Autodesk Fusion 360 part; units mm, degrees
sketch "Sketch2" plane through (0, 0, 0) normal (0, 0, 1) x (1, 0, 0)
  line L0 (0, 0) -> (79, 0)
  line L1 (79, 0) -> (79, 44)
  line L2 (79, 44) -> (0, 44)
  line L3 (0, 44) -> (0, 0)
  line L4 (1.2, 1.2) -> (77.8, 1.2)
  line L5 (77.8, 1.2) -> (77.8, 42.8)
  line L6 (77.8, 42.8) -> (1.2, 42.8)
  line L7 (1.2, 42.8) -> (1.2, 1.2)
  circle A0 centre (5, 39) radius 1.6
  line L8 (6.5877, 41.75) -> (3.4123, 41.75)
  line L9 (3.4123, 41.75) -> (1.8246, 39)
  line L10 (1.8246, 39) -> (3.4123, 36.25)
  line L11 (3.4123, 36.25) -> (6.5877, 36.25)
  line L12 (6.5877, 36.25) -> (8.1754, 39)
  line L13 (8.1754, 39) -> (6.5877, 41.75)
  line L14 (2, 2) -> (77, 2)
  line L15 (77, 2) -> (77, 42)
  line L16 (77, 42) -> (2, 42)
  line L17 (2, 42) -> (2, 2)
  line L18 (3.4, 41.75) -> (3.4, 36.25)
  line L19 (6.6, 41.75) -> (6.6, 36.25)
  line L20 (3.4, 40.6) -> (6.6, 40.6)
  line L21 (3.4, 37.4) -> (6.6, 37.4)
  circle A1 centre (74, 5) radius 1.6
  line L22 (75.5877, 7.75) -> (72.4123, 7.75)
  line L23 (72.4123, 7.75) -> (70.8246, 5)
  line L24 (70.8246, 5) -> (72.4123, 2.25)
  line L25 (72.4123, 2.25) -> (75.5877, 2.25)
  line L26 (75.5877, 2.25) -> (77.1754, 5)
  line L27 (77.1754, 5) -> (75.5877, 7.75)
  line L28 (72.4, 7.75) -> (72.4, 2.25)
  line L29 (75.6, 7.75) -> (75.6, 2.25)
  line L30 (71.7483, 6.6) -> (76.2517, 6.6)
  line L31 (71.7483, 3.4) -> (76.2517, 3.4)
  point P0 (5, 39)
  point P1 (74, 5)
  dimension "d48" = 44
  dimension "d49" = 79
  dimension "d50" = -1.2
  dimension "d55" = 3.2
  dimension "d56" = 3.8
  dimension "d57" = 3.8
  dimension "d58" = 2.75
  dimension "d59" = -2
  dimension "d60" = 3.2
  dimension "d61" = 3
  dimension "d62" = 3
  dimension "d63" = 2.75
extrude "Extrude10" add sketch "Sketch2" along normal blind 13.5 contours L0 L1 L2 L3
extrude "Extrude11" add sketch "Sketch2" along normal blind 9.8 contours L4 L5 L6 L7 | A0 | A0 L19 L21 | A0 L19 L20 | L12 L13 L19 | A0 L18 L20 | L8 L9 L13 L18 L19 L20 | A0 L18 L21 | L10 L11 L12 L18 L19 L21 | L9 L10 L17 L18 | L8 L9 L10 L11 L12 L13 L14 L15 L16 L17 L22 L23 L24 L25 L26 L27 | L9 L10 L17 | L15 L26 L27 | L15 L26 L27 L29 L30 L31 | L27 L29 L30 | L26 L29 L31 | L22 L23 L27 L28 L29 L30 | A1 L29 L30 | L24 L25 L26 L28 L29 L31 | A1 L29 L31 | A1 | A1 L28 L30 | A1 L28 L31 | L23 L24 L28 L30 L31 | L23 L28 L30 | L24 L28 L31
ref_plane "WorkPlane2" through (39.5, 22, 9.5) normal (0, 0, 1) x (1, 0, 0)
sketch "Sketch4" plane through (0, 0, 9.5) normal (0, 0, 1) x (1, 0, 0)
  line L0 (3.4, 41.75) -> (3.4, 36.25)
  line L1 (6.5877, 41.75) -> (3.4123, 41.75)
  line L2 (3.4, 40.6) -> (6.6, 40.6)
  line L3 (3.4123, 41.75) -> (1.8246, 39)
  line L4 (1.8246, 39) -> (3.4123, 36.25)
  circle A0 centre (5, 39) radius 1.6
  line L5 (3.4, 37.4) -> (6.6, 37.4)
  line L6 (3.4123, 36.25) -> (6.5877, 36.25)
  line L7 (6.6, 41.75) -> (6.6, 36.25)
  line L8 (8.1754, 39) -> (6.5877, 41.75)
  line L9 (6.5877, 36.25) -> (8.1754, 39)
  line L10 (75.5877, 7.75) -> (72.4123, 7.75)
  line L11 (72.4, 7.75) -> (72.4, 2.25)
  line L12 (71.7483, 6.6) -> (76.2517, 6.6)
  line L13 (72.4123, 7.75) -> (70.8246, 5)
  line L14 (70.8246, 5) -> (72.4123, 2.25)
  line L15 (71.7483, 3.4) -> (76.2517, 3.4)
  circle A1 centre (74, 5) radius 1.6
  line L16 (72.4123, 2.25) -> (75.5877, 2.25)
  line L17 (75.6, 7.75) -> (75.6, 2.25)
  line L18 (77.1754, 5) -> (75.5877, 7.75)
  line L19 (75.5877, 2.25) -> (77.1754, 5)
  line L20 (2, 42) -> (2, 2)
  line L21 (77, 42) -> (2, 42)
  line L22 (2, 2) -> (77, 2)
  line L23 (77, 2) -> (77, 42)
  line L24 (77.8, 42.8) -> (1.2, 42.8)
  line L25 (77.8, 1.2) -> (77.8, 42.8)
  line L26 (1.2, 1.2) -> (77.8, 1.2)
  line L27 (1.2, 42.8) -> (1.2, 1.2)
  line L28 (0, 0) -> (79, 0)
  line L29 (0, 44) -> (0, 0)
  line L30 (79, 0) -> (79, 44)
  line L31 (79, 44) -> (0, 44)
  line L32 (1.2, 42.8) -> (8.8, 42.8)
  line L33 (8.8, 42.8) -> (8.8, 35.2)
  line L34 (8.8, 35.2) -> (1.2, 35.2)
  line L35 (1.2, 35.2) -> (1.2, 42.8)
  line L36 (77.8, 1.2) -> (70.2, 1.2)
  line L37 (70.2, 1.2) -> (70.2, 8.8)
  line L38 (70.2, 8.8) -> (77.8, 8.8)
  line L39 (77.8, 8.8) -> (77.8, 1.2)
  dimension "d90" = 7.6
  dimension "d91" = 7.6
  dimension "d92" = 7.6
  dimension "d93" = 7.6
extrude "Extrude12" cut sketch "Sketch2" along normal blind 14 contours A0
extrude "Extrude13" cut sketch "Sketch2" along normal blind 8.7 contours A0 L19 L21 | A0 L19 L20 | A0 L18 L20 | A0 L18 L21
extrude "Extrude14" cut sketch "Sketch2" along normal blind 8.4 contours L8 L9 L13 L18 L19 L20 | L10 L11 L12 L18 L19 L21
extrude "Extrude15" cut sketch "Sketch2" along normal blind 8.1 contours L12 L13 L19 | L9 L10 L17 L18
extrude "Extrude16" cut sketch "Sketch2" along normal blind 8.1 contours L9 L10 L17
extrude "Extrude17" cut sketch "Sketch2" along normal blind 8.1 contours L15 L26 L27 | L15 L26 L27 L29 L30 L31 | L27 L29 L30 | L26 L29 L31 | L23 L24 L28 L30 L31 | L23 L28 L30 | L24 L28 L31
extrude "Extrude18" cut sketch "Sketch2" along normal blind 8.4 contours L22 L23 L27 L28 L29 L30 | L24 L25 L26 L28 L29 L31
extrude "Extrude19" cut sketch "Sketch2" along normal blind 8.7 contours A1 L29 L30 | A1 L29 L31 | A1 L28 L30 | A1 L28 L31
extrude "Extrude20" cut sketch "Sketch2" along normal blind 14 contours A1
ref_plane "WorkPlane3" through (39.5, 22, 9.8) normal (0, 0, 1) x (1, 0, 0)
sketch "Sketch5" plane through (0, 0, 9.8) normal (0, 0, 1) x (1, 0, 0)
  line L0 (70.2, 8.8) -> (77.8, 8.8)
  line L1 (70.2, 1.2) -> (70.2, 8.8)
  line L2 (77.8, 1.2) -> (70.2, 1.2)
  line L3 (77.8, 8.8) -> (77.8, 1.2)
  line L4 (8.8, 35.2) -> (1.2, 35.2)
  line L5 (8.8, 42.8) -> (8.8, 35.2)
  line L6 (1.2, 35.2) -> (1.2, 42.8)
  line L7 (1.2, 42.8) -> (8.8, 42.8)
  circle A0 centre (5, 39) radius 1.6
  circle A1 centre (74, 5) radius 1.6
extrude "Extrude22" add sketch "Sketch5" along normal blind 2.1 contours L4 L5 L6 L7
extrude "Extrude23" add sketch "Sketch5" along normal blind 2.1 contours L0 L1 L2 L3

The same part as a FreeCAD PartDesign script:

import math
import FreeCAD as App
import Part
import Sketcher
from FreeCAD import Vector
Q = App.Units.Quantity


def add_polygon(sketch, points):
    """Adds a closed chain of lines whose ends are joined by coincident constraints."""
    first, n = sketch.GeometryCount, len(points)
    for a, b in zip(points, points[1:] + points[:1]):
        sketch.addGeometry(Part.LineSegment(App.Vector(*a, 0), App.Vector(*b, 0)), False)
    for i in range(n):
        sketch.addConstraint(Sketcher.Constraint("Coincident", first + i, 2, first + (i + 1) % n, 1))

doc = App.newDocument("Part")
body = doc.addObject("PartDesign::Body", "Body")

# Sketch on XY plane
sketch1 = body.newObject("Sketcher::SketchObject", "Sketch")
sketch1.AttachmentSupport = (doc.getObject("XY_Plane"), [""])
sketch1.MapMode = "FlatFace"
add_polygon(sketch1, [(0, 44), (0, 0), (79, 0), (79, 44)])  # lines 0-3
add_polygon(sketch1, [(78, 1), (1, 1), (1, 43), (78, 43)])  # lines 4-7
sketch1.addConstraint([
    Sketcher.Constraint("Vertical", 0),
    Sketcher.Constraint("Horizontal", 1),
    Sketcher.Constraint("Vertical", 2),
    Sketcher.Constraint("Horizontal", 3),
    Sketcher.Constraint("Horizontal", 4),
    Sketcher.Constraint("Vertical", 5),
    Sketcher.Constraint("Horizontal", 6),
    Sketcher.Constraint("Vertical", 7),
    Sketcher.Constraint("Coincident", 0, 2, -1, 1),
    Sketcher.Constraint("DistanceX", 1, 1, 1, 2, 79.0),
    Sketcher.Constraint("DistanceY", 0, 2, 0, 1, 44.0),
    Sketcher.Constraint("DistanceX", -1, 1, 4, 2, 1.2),
    Sketcher.Constraint("DistanceY", -1, 1, 4, 2, 1.2),
    Sketcher.Constraint("DistanceY", 5, 2, 3, 2, 1.2),
    Sketcher.Constraint("DistanceX", 6, 2, 2, 2, 1.2),
])
pad1 = body.newObject("PartDesign::Pad", "Pad")
pad1.Profile = sketch1
pad1.Length = 13.5

# Sketch on XY plane
sketch2 = body.newObject("Sketcher::SketchObject", "Sketch001")
sketch2.AttachmentSupport = (doc.getObject("XY_Plane"), [""])
sketch2.MapMode = "FlatFace"
add_polygon(sketch2, [(1, 43), (1, 1), (78, 1), (78, 43)])  # lines 0-3
sketch2.addConstraint([
    Sketcher.Constraint("Vertical", 0),
    Sketcher.Constraint("Horizontal", 1),
    Sketcher.Constraint("Vertical", 2),
    Sketcher.Constraint("Horizontal", 3),
    Sketcher.Constraint("DistanceX", -1, 1, 0, 2, 1.2),
    Sketcher.Constraint("DistanceY", -1, 1, 0, 2, 1.2),
    Sketcher.Constraint("DistanceX", 1, 1, 1, 2, 76.6),
    Sketcher.Constraint("DistanceY", 0, 2, 0, 1, 41.6),
])
pad2 = body.newObject("PartDesign::Pad", "Pad001")
pad2.Profile = sketch2
pad2.Length = 9.8

# Sketch on XY plane
sketch3 = body.newObject("Sketcher::SketchObject", "Sketch002")
sketch3.AttachmentSupport = (doc.getObject("XY_Plane"), [""])
sketch3.MapMode = "FlatFace"
sketch3.addGeometry(Part.Circle(Vector(5, 39, 0), Vector(0, 0, 1), 1.6), False)
sketch3.addConstraint([
    Sketcher.Constraint("Diameter", 0, 3.2),
    Sketcher.Constraint("DistanceX", -1, 1, 0, 3, 5.0),
    Sketcher.Constraint("DistanceY", -1, 1, 0, 3, 39.0),
])
pocket1 = body.newObject("PartDesign::Pocket", "Pocket")
pocket1.Profile = sketch3
pocket1.Length = 14
pocket1.Reversed = True

# Sketch on XY plane
sketch4 = body.newObject("Sketcher::SketchObject", "Sketch003")
sketch4.AttachmentSupport = (doc.getObject("XY_Plane"), [""])
sketch4.MapMode = "FlatFace"
sketch4.addGeometry([
    Part.LineSegment(Vector(6.6, 37.4, 0), Vector(6.6, 39, 0)),  # 0
    Part.ArcOfCircle(Part.Circle(Vector(5, 39, 0), Vector(0, 0, 1), 1.6), math.radians(-90), math.radians(0)),  # 1
    Part.LineSegment(Vector(5, 37.4, 0), Vector(6.6, 37.4, 0)),  # 2
    Part.ArcOfCircle(Part.Circle(Vector(5, 39, 0), Vector(0, 0, 1), 1.6), math.radians(0), math.radians(90)),  # 3
    Part.LineSegment(Vector(6.6, 39, 0), Vector(6.6, 40.6, 0)),  # 4
    Part.LineSegment(Vector(6.6, 40.6, 0), Vector(5, 40.6, 0)),  # 5
    Part.ArcOfCircle(Part.Circle(Vector(5, 39, 0), Vector(0, 0, 1), 1.6), math.radians(90), math.radians(180)),  # 6
    Part.LineSegment(Vector(5, 40.6, 0), Vector(3.4, 40.6, 0)),  # 7
    Part.LineSegment(Vector(3.4, 40.6, 0), Vector(3.4, 39, 0)),  # 8
    Part.LineSegment(Vector(3.4, 37.4, 0), Vector(5, 37.4, 0)),  # 9
    Part.ArcOfCircle(Part.Circle(Vector(5, 39, 0), Vector(0, 0, 1), 1.6), math.radians(180), math.radians(270)),  # 10
    Part.LineSegment(Vector(3.4, 39, 0), Vector(3.4, 37.4, 0)),  # 11
], False)
sketch4.addConstraint([
    Sketcher.Constraint("Tangent", 0, 2, 1, 2),
    Sketcher.Constraint("Tangent", 1, 1, 2, 1),
    Sketcher.Constraint("Coincident", 2, 2, 0, 1),
    Sketcher.Constraint("Tangent", 3, 1, 4, 1),
    Sketcher.Constraint("Coincident", 4, 2, 5, 1),
    Sketcher.Constraint("Tangent", 5, 2, 3, 2),
    Sketcher.Constraint("Tangent", 6, 1, 7, 1),
    Sketcher.Constraint("Coincident", 7, 2, 8, 1),
    Sketcher.Constraint("Tangent", 8, 2, 6, 2),
    Sketcher.Constraint("Tangent", 9, 2, 10, 2),
    Sketcher.Constraint("Tangent", 10, 1, 11, 1),
    Sketcher.Constraint("Coincident", 11, 2, 9, 1),
    Sketcher.Constraint("Vertical", 0),
    Sketcher.Constraint("Horizontal", 2),
    Sketcher.Constraint("Vertical", 4),
    Sketcher.Constraint("Horizontal", 5),
    Sketcher.Constraint("Horizontal", 7),
    Sketcher.Constraint("Vertical", 8),
    Sketcher.Constraint("Horizontal", 9),
    Sketcher.Constraint("Vertical", 11),
    Sketcher.Constraint("Coincident", 3, 3, 1, 3),
    Sketcher.Constraint("Coincident", 6, 3, 1, 3),
    Sketcher.Constraint("Coincident", 10, 3, 1, 3),
    Sketcher.Constraint("Equal", 1, 3),
    Sketcher.Constraint("Equal", 3, 6),
    Sketcher.Constraint("Equal", 6, 10),
    Sketcher.Constraint("Radius", 1, 1.6),
    Sketcher.Constraint("DistanceX", -1, 1, 1, 3, 5.0),
    Sketcher.Constraint("DistanceY", -1, 1, 1, 3, 39.0),
])
pocket2 = body.newObject("PartDesign::Pocket", "Pocket001")
pocket2.Profile = sketch4
pocket2.Length = 8.7
pocket2.Reversed = True

# Sketch on XY plane
sketch5 = body.newObject("Sketcher::SketchObject", "Sketch004")
sketch5.AttachmentSupport = (doc.getObject("XY_Plane"), [""])
sketch5.MapMode = "FlatFace"
add_polygon(sketch5, [(3.4, 40.6), (6.6, 40.6), (6.6, 41.729), (6.588, 41.75), (3.412, 41.75), (3.4, 41.729)])  # lines 0-5
add_polygon(sketch5, [(6.6, 37.4), (3.4, 37.4), (3.4, 36.271), (3.412, 36.25), (6.588, 36.25), (6.6, 36.271)])  # lines 6-11
sketch5.addConstraint([
    Sketcher.Constraint("Horizontal", 0),
    Sketcher.Constraint("Vertical", 1),
    Sketcher.Constraint("Horizontal", 3),
    Sketcher.Constraint("Vertical", 5),
    Sketcher.Constraint("Horizontal", 6),
    Sketcher.Constraint("Vertical", 7),
    Sketcher.Constraint("Horizontal", 9),
    Sketcher.Constraint("Vertical", 11),
    Sketcher.Constraint("Parallel", 2, 8),
    Sketcher.Constraint("Parallel", 4, 10),
    Sketcher.Constraint("Horizontal", 1, 2, 4, 2),
    Sketcher.Constraint("Horizontal", 7, 2, 10, 2),
    Sketcher.Constraint("Vertical", 5, 2, 6, 2),
    Sketcher.Constraint("Vertical", 3, 2, 8, 2),
    Sketcher.Constraint("Vertical", 2, 2, 9, 2),
    Sketcher.Constraint("Vertical", 1, 2, 10, 2),
    Sketcher.Constraint("Equal", 5, 7),
    Sketcher.Constraint("DistanceX", 0, 1, 0, 2, 3.2),
    Sketcher.Constraint("DistanceY", 6, 2, 5, 2, 3.2),
    Sketcher.Constraint("Angle", 2, Q("119.9998 deg")),
    Sketcher.Constraint("DistanceX", -1, 1, 0, 2, 6.6),
    Sketcher.Constraint("DistanceY", -1, 1, 0, 2, 40.6),
    Sketcher.Constraint("DistanceY", -1, 1, 2, 2, 41.75),
    Sketcher.Constraint("DistanceX", 3, 2, 3, 1, 3.1754),
])
pocket3 = body.newObject("PartDesign::Pocket", "Pocket002")
pocket3.Profile = sketch5
pocket3.Length = 8.4
pocket3.Reversed = True

# Sketch on XY plane
sketch6 = body.newObject("Sketcher::SketchObject", "Sketch005")
sketch6.AttachmentSupport = (doc.getObject("XY_Plane"), [""])
sketch6.MapMode = "FlatFace"
add_polygon(sketch6, [(6.6, 41.7), (6.6, 36.3), (8.2, 39)])  # lines 0-2
add_polygon(sketch6, [(3.4, 36.3), (3.4, 41.7), (2, 39.3), (2, 38.7)])  # lines 3-6
sketch6.addConstraint([
    Sketcher.Constraint("Vertical", 0),
    Sketcher.Constraint("Vertical", 3),
    Sketcher.Constraint("Vertical", 5),
    Sketcher.Constraint("Parallel", 1, 4),
    Sketcher.Constraint("Parallel", 2, 6),
    Sketcher.Constraint("Horizontal", 2, 2, 3, 2),
    Sketcher.Constraint("Horizontal", 0, 2, 6, 2),
    Sketcher.Constraint("Equal", 1, 2),
    Sketcher.Constraint("DistanceX", -1, 1, 4, 2, 2.0),
    Sketcher.Constraint("DistanceX", 3, 2, 2, 2, 3.2),
    Sketcher.Constraint("Angle", 1, Q("60.0002 deg")),
    Sketcher.Constraint("DistanceY", -1, 1, 1, 2, 39.0),
    Sketcher.Constraint("Distance", 4, 2.8),
    Sketcher.Constraint("DistanceY", 0, 2, 0, 1, 5.4574),
])
pocket4 = body.newObject("PartDesign::Pocket", "Pocket003")
pocket4.Profile = sketch6
pocket4.Length = 8.1
pocket4.Reversed = True

# Sketch on XY plane
sketch7 = body.newObject("Sketcher::SketchObject", "Sketch006")
sketch7.AttachmentSupport = (doc.getObject("XY_Plane"), [""])
sketch7.MapMode = "FlatFace"
add_polygon(sketch7, [(2, 38.7), (2, 39.3), (1.82, 39)])  # lines 0-2
sketch7.addConstraint([
    Sketcher.Constraint("Vertical", 0),
    Sketcher.Constraint("Equal", 1, 2),
    Sketcher.Constraint("DistanceX", -1, 1, 0, 2, 2.0),
    Sketcher.Constraint("Angle", 1, Q("-119.9998 deg")),
    Sketcher.Constraint("DistanceY", -1, 1, 1, 2, 39.0),
    Sketcher.Constraint("DistanceY", 0, 1, 0, 2, 0.6076),
])
pocket5 = body.newObject("PartDesign::Pocket", "Pocket004")
pocket5.Profile = sketch7
pocket5.Length = 8.1
pocket5.Reversed = True

# Sketch on XY plane
sketch8 = body.newObject("Sketcher::SketchObject", "Sketch007")
sketch8.AttachmentSupport = (doc.getObject("XY_Plane"), [""])
sketch8.MapMode = "FlatFace"
add_polygon(sketch8, [(77.2, 5), (75.6, 7.7), (75.6, 2.3)])  # lines 0-2
add_polygon(sketch8, [(72.4, 7.7), (70.8, 5), (72.4, 2.3)])  # lines 3-5
sketch8.addConstraint([
    Sketcher.Constraint("Vertical", 1),
    Sketcher.Constraint("Vertical", 5),
    Sketcher.Constraint("Parallel", 2, 3),
    Sketcher.Constraint("Parallel", 0, 4),
    Sketcher.Constraint("Horizontal", 2, 2, 3, 2),
    Sketcher.Constraint("Horizontal", 1, 2, 4, 2),
    Sketcher.Constraint("Horizontal", 0, 2, 5, 2),
    Sketcher.Constraint("DistanceX", 4, 2, 1, 2, 3.2),
    Sketcher.Constraint("Angle", 0, Q("119.9998 deg")),
    Sketcher.Constraint("DistanceY", -1, 1, 2, 2, 5.0),
    Sketcher.Constraint("DistanceX", -1, 1, 0, 2, 75.6),
    Sketcher.Constraint("DistanceY", 1, 2, 1, 1, 5.4574),
])
pocket6 = body.newObject("PartDesign::Pocket", "Pocket005")
pocket6.Profile = sketch8
pocket6.Length = 8.1
pocket6.Reversed = True

# Sketch on XY plane
sketch9 = body.newObject("Sketcher::SketchObject", "Sketch008")
sketch9.AttachmentSupport = (doc.getObject("XY_Plane"), [""])
sketch9.MapMode = "FlatFace"
add_polygon(sketch9, [(75.6, 6.6), (75.6, 7.729), (75.588, 7.75), (72.412, 7.75), (72.4, 7.729), (72.4, 6.6)])  # lines 0-5
add_polygon(sketch9, [(75.588, 2.25), (75.6, 2.271), (75.6, 3.4), (72.4, 3.4), (72.4, 2.271), (72.412, 2.25)])  # lines 6-11
sketch9.addConstraint([
    Sketcher.Constraint("Vertical", 0),
    Sketcher.Constraint("Horizontal", 2),
    Sketcher.Constraint("Vertical", 4),
    Sketcher.Constraint("Horizontal", 5),
    Sketcher.Constraint("Vertical", 7),
    Sketcher.Constraint("Horizontal", 8),
    Sketcher.Constraint("Vertical", 9),
    Sketcher.Constraint("Horizontal", 11),
    Sketcher.Constraint("Parallel", 3, 6),
    Sketcher.Constraint("Parallel", 1, 10),
    Sketcher.Constraint("Horizontal", 0, 2, 3, 2),
    Sketcher.Constraint("Horizontal", 6, 2, 9, 2),
    Sketcher.Constraint("Vertical", 5, 2, 6, 2),
    Sketcher.Constraint("Vertical", 4, 2, 8, 2),
    Sketcher.Constraint("Vertical", 2, 2, 10, 2),
    Sketcher.Constraint("Vertical", 1, 2, 11, 2),
    Sketcher.Constraint("Equal", 4, 7),
    Sketcher.Constraint("DistanceX", 5, 1, 5, 2, 3.2),
    Sketcher.Constraint("DistanceY", 7, 2, 5, 2, 3.2),
    Sketcher.Constraint("Angle", 1, Q("119.9998 deg")),
    Sketcher.Constraint("DistanceX", -1, 1, 0, 2, 75.6),
    Sketcher.Constraint("DistanceY", -1, 1, 4, 2, 6.6),
    Sketcher.Constraint("DistanceY", -1, 1, 1, 2, 7.75),
    Sketcher.Constraint("DistanceX", 2, 2, 2, 1, 3.1754),
])
pocket7 = body.newObject("PartDesign::Pocket", "Pocket006")
pocket7.Profile = sketch9
pocket7.Length = 8.4
pocket7.Reversed = True

# Sketch on XY plane
sketch10 = body.newObject("Sketcher::SketchObject", "Sketch009")
sketch10.AttachmentSupport = (doc.getObject("XY_Plane"), [""])
sketch10.MapMode = "FlatFace"
sketch10.addGeometry([
    Part.LineSegment(Vector(75.6, 5, 0), Vector(75.6, 6.6, 0)),  # 0
    Part.LineSegment(Vector(75.6, 6.6, 0), Vector(74, 6.6, 0)),  # 1
    Part.ArcOfCircle(Part.Circle(Vector(74, 5, 0), Vector(0, 0, 1), 1.6), math.radians(0), math.radians(90)),  # 2
    Part.LineSegment(Vector(74, 3.4, 0), Vector(75.6, 3.4, 0)),  # 3
    Part.LineSegment(Vector(75.6, 3.4, 0), Vector(75.6, 5, 0)),  # 4
    Part.ArcOfCircle(Part.Circle(Vector(74, 5, 0), Vector(0, 0, 1), 1.6), math.radians(-90), math.radians(0)),  # 5
    Part.ArcOfCircle(Part.Circle(Vector(74, 5, 0), Vector(0, 0, 1), 1.6), math.radians(90), math.radians(180)),  # 6
    Part.LineSegment(Vector(74, 6.6, 0), Vector(72.4, 6.6, 0)),  # 7
    Part.LineSegment(Vector(72.4, 6.6, 0), Vector(72.4, 5, 0)),  # 8
    Part.LineSegment(Vector(72.4, 3.4, 0), Vector(74, 3.4, 0)),  # 9
    Part.ArcOfCircle(Part.Circle(Vector(74, 5, 0), Vector(0, 0, 1), 1.6), math.radians(180), math.radians(270)),  # 10
    Part.LineSegment(Vector(72.4, 5, 0), Vector(72.4, 3.4, 0)),  # 11
], False)
sketch10.addConstraint([
    Sketcher.Constraint("Coincident", 0, 2, 1, 1),
    Sketcher.Constraint("Tangent", 1, 2, 2, 2),
    Sketcher.Constraint("Tangent", 2, 1, 0, 1),
    Sketcher.Constraint("Coincident", 3, 2, 4, 1),
    Sketcher.Constraint("Tangent", 4, 2, 5, 2),
    Sketcher.Constraint("Tangent", 5, 1, 3, 1),
    Sketcher.Constraint("Tangent", 6, 1, 7, 1),
    Sketcher.Constraint("Coincident", 7, 2, 8, 1),
    Sketcher.Constraint("Tangent", 8, 2, 6, 2),
    Sketcher.Constraint("Tangent", 9, 2, 10, 2),
    Sketcher.Constraint("Tangent", 10, 1, 11, 1),
    Sketcher.Constraint("Coincident", 11, 2, 9, 1),
    Sketcher.Constraint("Vertical", 0),
    Sketcher.Constraint("Horizontal", 1),
    Sketcher.Constraint("Horizontal", 3),
    Sketcher.Constraint("Vertical", 4),
    Sketcher.Constraint("Horizontal", 7),
    Sketcher.Constraint("Vertical", 8),
    Sketcher.Constraint("Horizontal", 9),
    Sketcher.Constraint("Vertical", 11),
    Sketcher.Constraint("Coincident", 5, 3, 2, 3),
    Sketcher.Constraint("Coincident", 6, 3, 2, 3),
    Sketcher.Constraint("Coincident", 10, 3, 2, 3),
    Sketcher.Constraint("Equal", 2, 5),
    Sketcher.Constraint("Equal", 5, 6),
    Sketcher.Constraint("Equal", 6, 10),
    Sketcher.Constraint("Radius", 2, 1.6),
    Sketcher.Constraint("DistanceX", -1, 1, 2, 3, 74.0),
    Sketcher.Constraint("DistanceY", -1, 1, 2, 3, 5.0),
])
pocket8 = body.newObject("PartDesign::Pocket", "Pocket007")
pocket8.Profile = sketch10
pocket8.Length = 8.7
pocket8.Reversed = True

# Sketch on XY plane
sketch11 = body.newObject("Sketcher::SketchObject", "Sketch010")
sketch11.AttachmentSupport = (doc.getObject("XY_Plane"), [""])
sketch11.MapMode = "FlatFace"
sketch11.addGeometry(Part.Circle(Vector(74, 5, 0), Vector(0, 0, 1), 1.6), False)
sketch11.addConstraint([
    Sketcher.Constraint("Diameter", 0, 3.2),
    Sketcher.Constraint("DistanceX", -1, 1, 0, 3, 74.0),
    Sketcher.Constraint("DistanceY", -1, 1, 0, 3, 5.0),
])
pocket9 = body.newObject("PartDesign::Pocket", "Pocket008")
pocket9.Profile = sketch11
pocket9.Length = 14
pocket9.Reversed = True

# Sketch on XY plane
sketch12 = body.newObject("Sketcher::SketchObject", "Sketch011")
sketch12.AttachmentSupport = (doc.getObject("XY_Plane"), [""])
sketch12.MapMode = "FlatFace"
sketch12.AttachmentOffset = App.Placement(Vector(0, 0, 9.8), App.Rotation())
add_polygon(sketch12, [(1.2, 35.2), (8.8, 35.2), (8.8, 42.8), (1.2, 42.8)])  # lines 0-3
sketch12.addGeometry(Part.Circle(Vector(5, 39, 0), Vector(0, 0, 1), 1.6), False)  # 4
sketch12.addConstraint([
    Sketcher.Constraint("Horizontal", 0),
    Sketcher.Constraint("Vertical", 1),
    Sketcher.Constraint("Horizontal", 2),
    Sketcher.Constraint("Vertical", 3),
    Sketcher.Constraint("Equal", 2, 1),
    Sketcher.Constraint("Diameter", 4, 3.2),
    Sketcher.Constraint("DistanceX", 0, 1, 0, 2, 7.6),
    Sketcher.Constraint("DistanceX", -1, 1, 4, 3, 5.0),
    Sketcher.Constraint("DistanceY", -1, 1, 4, 3, 39.0),
    Sketcher.Constraint("DistanceX", -1, 1, 0, 2, 8.8),
    Sketcher.Constraint("DistanceY", -1, 1, 0, 2, 35.2),
])
pad3 = body.newObject("PartDesign::Pad", "Pad002")
pad3.Profile = sketch12
pad3.Length = 2.1

# Sketch on XY plane
sketch13 = body.newObject("Sketcher::SketchObject", "Sketch012")
sketch13.AttachmentSupport = (doc.getObject("XY_Plane"), [""])
sketch13.MapMode = "FlatFace"
sketch13.AttachmentOffset = App.Placement(Vector(0, 0, 9.8), App.Rotation())
add_polygon(sketch13, [(77.8, 8.8), (70.2, 8.8), (70.2, 1.2), (77.8, 1.2)])  # lines 0-3
sketch13.addGeometry(Part.Circle(Vector(74, 5, 0), Vector(0, 0, 1), 1.6), False)  # 4
sketch13.addConstraint([
    Sketcher.Constraint("Horizontal", 0),
    Sketcher.Constraint("Vertical", 1),
    Sketcher.Constraint("Horizontal", 2),
    Sketcher.Constraint("Vertical", 3),
    Sketcher.Constraint("Equal", 2, 1),
    Sketcher.Constraint("Diameter", 4, 3.2),
    Sketcher.Constraint("DistanceX", 0, 2, 0, 1, 7.6),
    Sketcher.Constraint("DistanceX", -1, 1, 4, 3, 74.0),
    Sketcher.Constraint("DistanceY", -1, 1, 4, 3, 5.0),
    Sketcher.Constraint("DistanceX", -1, 1, 0, 2, 70.2),
    Sketcher.Constraint("DistanceY", -1, 1, 0, 2, 8.8),
])
pad4 = body.newObject("PartDesign::Pad", "Pad003")
pad4.Profile = sketch13
pad4.Length = 2.1

doc.recompute()
